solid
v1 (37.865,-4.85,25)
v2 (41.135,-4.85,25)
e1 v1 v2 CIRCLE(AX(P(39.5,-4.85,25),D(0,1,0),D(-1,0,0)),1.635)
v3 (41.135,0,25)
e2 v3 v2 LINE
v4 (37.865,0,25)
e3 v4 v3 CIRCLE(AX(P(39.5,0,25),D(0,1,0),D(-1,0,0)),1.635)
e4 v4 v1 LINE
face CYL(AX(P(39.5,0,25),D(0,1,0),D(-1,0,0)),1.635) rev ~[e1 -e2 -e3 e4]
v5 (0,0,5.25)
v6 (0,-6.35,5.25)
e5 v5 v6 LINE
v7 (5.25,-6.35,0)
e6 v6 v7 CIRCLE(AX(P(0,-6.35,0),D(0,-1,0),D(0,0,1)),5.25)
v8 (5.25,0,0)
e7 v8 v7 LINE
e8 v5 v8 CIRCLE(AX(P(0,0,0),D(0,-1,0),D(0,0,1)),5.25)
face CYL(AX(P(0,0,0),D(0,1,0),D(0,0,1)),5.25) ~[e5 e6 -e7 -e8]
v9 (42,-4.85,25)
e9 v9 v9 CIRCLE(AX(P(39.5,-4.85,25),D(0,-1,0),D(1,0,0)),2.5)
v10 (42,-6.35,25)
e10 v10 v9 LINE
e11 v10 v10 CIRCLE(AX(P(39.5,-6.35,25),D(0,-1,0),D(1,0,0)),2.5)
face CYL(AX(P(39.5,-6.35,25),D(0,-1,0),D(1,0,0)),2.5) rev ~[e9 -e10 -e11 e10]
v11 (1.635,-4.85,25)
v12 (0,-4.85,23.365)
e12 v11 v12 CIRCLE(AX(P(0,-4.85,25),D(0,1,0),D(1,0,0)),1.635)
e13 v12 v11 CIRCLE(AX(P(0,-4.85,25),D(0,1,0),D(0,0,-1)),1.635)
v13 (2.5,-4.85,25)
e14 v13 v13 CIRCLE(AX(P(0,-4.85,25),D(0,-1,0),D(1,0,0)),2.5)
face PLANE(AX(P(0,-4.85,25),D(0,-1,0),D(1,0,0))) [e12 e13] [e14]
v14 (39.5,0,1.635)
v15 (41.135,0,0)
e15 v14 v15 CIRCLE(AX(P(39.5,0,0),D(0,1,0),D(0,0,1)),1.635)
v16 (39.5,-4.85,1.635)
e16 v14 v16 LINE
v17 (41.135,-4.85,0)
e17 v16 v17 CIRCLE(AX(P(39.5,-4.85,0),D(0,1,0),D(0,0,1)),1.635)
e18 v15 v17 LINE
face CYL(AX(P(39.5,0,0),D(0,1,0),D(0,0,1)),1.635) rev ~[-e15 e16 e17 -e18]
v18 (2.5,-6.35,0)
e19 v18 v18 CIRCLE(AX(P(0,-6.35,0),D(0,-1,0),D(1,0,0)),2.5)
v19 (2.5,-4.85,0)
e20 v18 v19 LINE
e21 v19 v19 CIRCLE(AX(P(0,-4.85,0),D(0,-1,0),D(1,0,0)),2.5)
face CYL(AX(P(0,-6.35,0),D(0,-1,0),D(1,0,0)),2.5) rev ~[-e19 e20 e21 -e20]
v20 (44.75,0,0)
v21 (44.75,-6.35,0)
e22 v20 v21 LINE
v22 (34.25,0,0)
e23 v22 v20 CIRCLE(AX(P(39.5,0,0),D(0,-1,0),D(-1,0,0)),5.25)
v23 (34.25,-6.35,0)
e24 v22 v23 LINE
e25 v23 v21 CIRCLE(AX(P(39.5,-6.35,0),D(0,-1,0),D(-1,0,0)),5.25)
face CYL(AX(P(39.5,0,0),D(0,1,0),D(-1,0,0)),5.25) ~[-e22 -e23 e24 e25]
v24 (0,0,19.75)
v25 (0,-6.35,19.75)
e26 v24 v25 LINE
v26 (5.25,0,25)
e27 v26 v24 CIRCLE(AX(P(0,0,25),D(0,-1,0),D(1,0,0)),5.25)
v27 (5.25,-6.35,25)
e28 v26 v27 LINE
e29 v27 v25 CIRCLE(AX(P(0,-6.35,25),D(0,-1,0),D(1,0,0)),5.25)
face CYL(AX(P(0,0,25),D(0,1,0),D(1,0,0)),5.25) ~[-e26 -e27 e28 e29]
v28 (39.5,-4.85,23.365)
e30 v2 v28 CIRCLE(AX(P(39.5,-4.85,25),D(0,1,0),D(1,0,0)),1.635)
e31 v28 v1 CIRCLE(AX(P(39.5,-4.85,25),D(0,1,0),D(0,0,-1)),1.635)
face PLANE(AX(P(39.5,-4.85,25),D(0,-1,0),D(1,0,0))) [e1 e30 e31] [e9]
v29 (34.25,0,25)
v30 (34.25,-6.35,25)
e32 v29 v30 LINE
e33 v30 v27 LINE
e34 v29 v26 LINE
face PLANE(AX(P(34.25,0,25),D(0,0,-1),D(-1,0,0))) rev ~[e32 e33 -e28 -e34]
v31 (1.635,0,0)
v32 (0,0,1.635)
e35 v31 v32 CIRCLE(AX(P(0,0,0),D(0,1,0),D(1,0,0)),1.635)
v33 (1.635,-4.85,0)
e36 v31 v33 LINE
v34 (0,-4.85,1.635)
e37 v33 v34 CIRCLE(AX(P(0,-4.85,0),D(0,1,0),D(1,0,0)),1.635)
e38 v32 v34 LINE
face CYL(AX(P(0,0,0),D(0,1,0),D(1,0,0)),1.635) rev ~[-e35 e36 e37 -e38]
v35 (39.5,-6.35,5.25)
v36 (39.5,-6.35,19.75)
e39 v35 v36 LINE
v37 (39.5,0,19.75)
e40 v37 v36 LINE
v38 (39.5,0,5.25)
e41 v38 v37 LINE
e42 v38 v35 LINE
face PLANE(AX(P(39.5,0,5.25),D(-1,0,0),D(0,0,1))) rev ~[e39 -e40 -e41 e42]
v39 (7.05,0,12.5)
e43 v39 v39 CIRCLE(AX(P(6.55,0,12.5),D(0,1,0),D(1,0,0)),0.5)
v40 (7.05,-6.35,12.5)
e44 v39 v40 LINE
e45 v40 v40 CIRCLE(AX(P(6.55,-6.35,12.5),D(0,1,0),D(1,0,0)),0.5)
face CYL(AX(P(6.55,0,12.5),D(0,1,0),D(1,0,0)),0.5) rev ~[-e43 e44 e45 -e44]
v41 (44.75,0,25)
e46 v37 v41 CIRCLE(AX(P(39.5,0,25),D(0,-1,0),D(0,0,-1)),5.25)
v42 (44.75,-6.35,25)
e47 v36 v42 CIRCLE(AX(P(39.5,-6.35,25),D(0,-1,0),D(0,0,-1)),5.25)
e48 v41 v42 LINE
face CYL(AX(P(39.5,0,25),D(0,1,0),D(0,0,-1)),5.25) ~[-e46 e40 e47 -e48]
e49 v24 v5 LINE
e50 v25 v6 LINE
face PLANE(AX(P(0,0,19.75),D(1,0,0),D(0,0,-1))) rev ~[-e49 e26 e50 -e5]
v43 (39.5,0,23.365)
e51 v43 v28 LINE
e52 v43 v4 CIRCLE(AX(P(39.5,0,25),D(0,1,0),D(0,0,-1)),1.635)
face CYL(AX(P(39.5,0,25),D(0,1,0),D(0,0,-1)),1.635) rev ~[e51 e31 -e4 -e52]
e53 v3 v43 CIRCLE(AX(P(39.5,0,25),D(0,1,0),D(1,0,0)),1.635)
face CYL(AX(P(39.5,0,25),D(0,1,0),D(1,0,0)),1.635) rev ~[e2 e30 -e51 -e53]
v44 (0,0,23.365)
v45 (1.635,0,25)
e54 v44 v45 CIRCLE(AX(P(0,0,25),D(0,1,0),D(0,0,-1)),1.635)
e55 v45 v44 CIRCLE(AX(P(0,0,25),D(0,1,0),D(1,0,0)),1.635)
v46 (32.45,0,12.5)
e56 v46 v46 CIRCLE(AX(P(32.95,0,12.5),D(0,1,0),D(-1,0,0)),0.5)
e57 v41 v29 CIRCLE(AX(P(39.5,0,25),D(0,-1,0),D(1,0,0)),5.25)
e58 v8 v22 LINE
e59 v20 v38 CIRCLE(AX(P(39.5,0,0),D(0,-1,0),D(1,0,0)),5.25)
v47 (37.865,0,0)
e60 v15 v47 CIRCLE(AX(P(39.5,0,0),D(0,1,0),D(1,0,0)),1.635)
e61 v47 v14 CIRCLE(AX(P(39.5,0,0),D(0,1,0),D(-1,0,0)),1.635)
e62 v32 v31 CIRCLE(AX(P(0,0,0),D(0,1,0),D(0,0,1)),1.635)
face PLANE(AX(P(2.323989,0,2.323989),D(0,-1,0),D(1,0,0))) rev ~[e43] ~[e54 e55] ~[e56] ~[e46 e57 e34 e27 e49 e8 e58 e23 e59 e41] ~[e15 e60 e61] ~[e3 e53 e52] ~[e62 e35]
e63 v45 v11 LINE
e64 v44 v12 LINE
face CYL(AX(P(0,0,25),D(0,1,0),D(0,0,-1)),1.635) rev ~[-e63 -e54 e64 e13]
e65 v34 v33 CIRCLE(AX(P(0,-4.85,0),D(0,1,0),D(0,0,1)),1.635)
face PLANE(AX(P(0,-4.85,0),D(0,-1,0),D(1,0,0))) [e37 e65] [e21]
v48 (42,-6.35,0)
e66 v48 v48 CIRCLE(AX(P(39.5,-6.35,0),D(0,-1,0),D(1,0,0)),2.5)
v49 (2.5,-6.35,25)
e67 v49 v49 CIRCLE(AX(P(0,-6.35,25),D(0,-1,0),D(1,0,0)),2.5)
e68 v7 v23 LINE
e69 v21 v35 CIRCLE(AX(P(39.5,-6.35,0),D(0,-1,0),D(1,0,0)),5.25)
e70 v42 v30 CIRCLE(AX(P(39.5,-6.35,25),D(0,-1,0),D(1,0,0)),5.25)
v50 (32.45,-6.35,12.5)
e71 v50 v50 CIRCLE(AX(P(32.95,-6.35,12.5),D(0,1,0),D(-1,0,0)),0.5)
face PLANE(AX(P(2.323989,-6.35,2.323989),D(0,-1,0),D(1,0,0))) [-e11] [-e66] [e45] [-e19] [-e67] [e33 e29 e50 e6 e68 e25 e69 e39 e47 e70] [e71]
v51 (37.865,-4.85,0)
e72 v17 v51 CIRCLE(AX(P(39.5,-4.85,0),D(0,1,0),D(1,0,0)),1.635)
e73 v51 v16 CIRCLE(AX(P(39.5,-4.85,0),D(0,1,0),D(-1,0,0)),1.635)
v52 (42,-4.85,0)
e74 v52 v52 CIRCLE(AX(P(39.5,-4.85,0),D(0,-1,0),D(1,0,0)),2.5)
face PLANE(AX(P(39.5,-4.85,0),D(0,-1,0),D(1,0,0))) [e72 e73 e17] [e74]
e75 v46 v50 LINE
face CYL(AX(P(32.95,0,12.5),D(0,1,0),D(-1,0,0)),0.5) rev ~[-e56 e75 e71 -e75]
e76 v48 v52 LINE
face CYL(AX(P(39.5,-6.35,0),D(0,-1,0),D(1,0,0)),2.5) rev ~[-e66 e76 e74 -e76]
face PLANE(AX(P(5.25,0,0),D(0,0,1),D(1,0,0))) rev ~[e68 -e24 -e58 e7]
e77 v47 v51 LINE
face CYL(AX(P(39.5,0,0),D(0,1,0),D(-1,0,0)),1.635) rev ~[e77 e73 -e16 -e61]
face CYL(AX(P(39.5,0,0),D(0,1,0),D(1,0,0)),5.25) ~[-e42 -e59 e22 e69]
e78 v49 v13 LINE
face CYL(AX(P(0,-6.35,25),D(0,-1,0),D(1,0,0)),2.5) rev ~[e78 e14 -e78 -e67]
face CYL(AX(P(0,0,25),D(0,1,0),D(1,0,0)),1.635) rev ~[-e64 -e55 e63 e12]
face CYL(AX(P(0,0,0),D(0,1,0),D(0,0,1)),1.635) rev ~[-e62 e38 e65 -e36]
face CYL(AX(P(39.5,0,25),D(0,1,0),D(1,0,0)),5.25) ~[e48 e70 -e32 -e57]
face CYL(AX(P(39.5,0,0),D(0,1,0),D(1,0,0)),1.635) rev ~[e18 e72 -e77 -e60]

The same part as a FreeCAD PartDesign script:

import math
import FreeCAD as App
import Part
import Sketcher

V = App.Vector

doc = App.newDocument("Part")
body = doc.addObject("PartDesign::Body", "Body")

sketch1 = doc.addObject("Sketcher::SketchObject", "Sketch")
body.addObject(sketch1)
sketch1.AttachmentSupport = (doc.XZ_Plane, [""])
sketch1.MapMode = "FlatFace"
sketch1.addGeometry(Part.ArcOfCircle(Part.Circle(V(0, 0, 0), V(0, 0, 1), 5.2), math.radians(90), math.radians(360)), False)
sketch1.addGeometry(Part.LineSegment(V(5.2, 0, 0), V(34.2, 0, 0)), False)
sketch1.addGeometry(Part.ArcOfCircle(Part.Circle(V(39.5, 0, 0), V(0, 0, 1), 5.2), math.radians(180), math.radians(360)), False)
sketch1.addGeometry(Part.ArcOfCircle(Part.Circle(V(39.5, 0, 0), V(0, 0, 1), 5.2), math.radians(0), math.radians(90)), False)
sketch1.addGeometry(Part.LineSegment(V(39.5, 5.2, 0), V(39.5, 19.8, 0)), False)
sketch1.addGeometry(Part.ArcOfCircle(Part.Circle(V(39.5, 25, 0), V(0, 0, 1), 5.2), math.radians(-90), math.radians(0)), False)
sketch1.addGeometry(Part.ArcOfCircle(Part.Circle(V(39.5, 25, 0), V(0, 0, 1), 5.2), math.radians(0), math.radians(180)), False)
sketch1.addGeometry(Part.LineSegment(V(34.2, 25, 0), V(5.2, 25, 0)), False)
sketch1.addGeometry(Part.ArcOfCircle(Part.Circle(V(0, 25, 0), V(0, 0, 1), 5.2), math.radians(0), math.radians(270)), False)
sketch1.addGeometry(Part.LineSegment(V(0, 19.8, 0), V(0, 5.2, 0)), False)
sketch1.addGeometry(Part.ArcOfCircle(Part.Circle(V(0, 0, 0), V(0, 0, 1), 1.6), math.radians(0), math.radians(90)), False)
sketch1.addGeometry(Part.ArcOfCircle(Part.Circle(V(0, 0, 0), V(0, 0, 1), 1.6), math.radians(90), math.radians(360)), False)
sketch1.addGeometry(Part.ArcOfCircle(Part.Circle(V(39.5, 25, 0), V(0, 0, 1), 1.6), math.radians(180), math.radians(270)), False)
sketch1.addGeometry(Part.ArcOfCircle(Part.Circle(V(39.5, 25, 0), V(0, 0, 1), 1.6), math.radians(0), math.radians(180)), False)
sketch1.addGeometry(Part.ArcOfCircle(Part.Circle(V(39.5, 25, 0), V(0, 0, 1), 1.6), math.radians(-90), math.radians(0)), False)
sketch1.addGeometry(Part.ArcOfCircle(Part.Circle(V(39.5, 0, 0), V(0, 0, 1), 1.6), math.radians(90), math.radians(180)), False)
sketch1.addGeometry(Part.ArcOfCircle(Part.Circle(V(39.5, 0, 0), V(0, 0, 1), 1.6), math.radians(0), math.radians(90)), False)
sketch1.addGeometry(Part.ArcOfCircle(Part.Circle(V(39.5, 0, 0), V(0, 0, 1), 1.6), math.radians(180), math.radians(360)), False)
sketch1.addGeometry(Part.ArcOfCircle(Part.Circle(V(0, 25, 0), V(0, 0, 1), 1.6), math.radians(-90), math.radians(0)), False)
sketch1.addGeometry(Part.ArcOfCircle(Part.Circle(V(0, 25, 0), V(0, 0, 1), 1.6), math.radians(0), math.radians(270)), False)
sketch1.addConstraint(Sketcher.Constraint("Coincident", 0, 2, 1, 1))
sketch1.addConstraint(Sketcher.Constraint("Coincident", 1, 2, 2, 1))
sketch1.addConstraint(Sketcher.Constraint("Tangent", 2, 2, 3, 1))
sketch1.addConstraint(Sketcher.Constraint("Coincident", 3, 2, 4, 1))
sketch1.addConstraint(Sketcher.Constraint("Coincident", 4, 2, 5, 1))
sketch1.addConstraint(Sketcher.Constraint("Tangent", 5, 2, 6, 1))
sketch1.addConstraint(Sketcher.Constraint("Coincident", 6, 2, 7, 1))
sketch1.addConstraint(Sketcher.Constraint("Coincident", 7, 2, 8, 1))
sketch1.addConstraint(Sketcher.Constraint("Coincident", 8, 2, 9, 1))
sketch1.addConstraint(Sketcher.Constraint("Coincident", 9, 2, 0, 1))
sketch1.addConstraint(Sketcher.Constraint("Tangent", 10, 1, 11, 2))
sketch1.addConstraint(Sketcher.Constraint("Coincident", 11, 1, 10, 2))
sketch1.addConstraint(Sketcher.Constraint("Tangent", 12, 1, 13, 2))
sketch1.addConstraint(Sketcher.Constraint("Tangent", 13, 1, 14, 2))
sketch1.addConstraint(Sketcher.Constraint("Tangent", 14, 1, 12, 2))
sketch1.addConstraint(Sketcher.Constraint("Tangent", 15, 1, 16, 2))
sketch1.addConstraint(Sketcher.Constraint("Tangent", 16, 1, 17, 2))
sketch1.addConstraint(Sketcher.Constraint("Tangent", 17, 1, 15, 2))
sketch1.addConstraint(Sketcher.Constraint("Tangent", 18, 1, 19, 2))
sketch1.addConstraint(Sketcher.Constraint("Coincident", 19, 1, 18, 2))
sketch1.addConstraint(Sketcher.Constraint("Horizontal", 1))
sketch1.addConstraint(Sketcher.Constraint("Vertical", 4))
sketch1.addConstraint(Sketcher.Constraint("Horizontal", 7))
sketch1.addConstraint(Sketcher.Constraint("Vertical", 9))
sketch1.addConstraint(Sketcher.Constraint("Coincident", 0, 3, -1, 1))
sketch1.addConstraint(Sketcher.Constraint("Coincident", 10, 3, -1, 1))
sketch1.addConstraint(Sketcher.Constraint("Coincident", 12, 3, 5, 3))
sketch1.addConstraint(Sketcher.Constraint("Coincident", 15, 3, 2, 3))
sketch1.addConstraint(Sketcher.Constraint("Coincident", 18, 3, 8, 3))
sketch1.addConstraint(Sketcher.Constraint("Equal", 0, 2))
sketch1.addConstraint(Sketcher.Constraint("Equal", 2, 3))
sketch1.addConstraint(Sketcher.Constraint("Equal", 3, 5))
sketch1.addConstraint(Sketcher.Constraint("Equal", 5, 6))
sketch1.addConstraint(Sketcher.Constraint("Equal", 6, 8))
sketch1.addConstraint(Sketcher.Constraint("Equal", 11, 12))
sketch1.addConstraint(Sketcher.Constraint("Equal", 14, 15))
sketch1.addConstraint(Sketcher.Constraint("Equal", 17, 18))
sketch1.addConstraint(Sketcher.Constraint("PointOnObject", 2, 3, -1))
sketch1.addConstraint(Sketcher.Constraint("PointOnObject", 8, 3, -2))
sketch1.addConstraint(Sketcher.Constraint("PointOnObject", 0, 2, -1))
sketch1.addConstraint(Sketcher.Constraint("PointOnObject", 2, 2, -1))
sketch1.addConstraint(Sketcher.Constraint("PointOnObject", 8, 2, -2))
sketch1.addConstraint(Sketcher.Constraint("PointOnObject", 10, 1, -1))
sketch1.addConstraint(Sketcher.Constraint("PointOnObject", 11, 1, -2))
sketch1.addConstraint(Sketcher.Constraint("PointOnObject", 16, 1, -1))
sketch1.addConstraint(Sketcher.Constraint("PointOnObject", 17, 1, -1))
sketch1.addConstraint(Sketcher.Constraint("PointOnObject", 18, 1, -2))
sketch1.addConstraint(Sketcher.Constraint("Horizontal", 6, 3, 8, 3))
sketch1.addConstraint(Sketcher.Constraint("Horizontal", 19, 3, 5, 2))
sketch1.addConstraint(Sketcher.Constraint("Horizontal", 5, 2, 6, 2))
sketch1.addConstraint(Sketcher.Constraint("Horizontal", 7, 2, 12, 1))
sketch1.addConstraint(Sketcher.Constraint("Horizontal", 12, 1, 13, 1))
sketch1.addConstraint(Sketcher.Constraint("Horizontal", 13, 1, 19, 1))
sketch1.addConstraint(Sketcher.Constraint("Vertical", 3, 3, 5, 3))
sketch1.addConstraint(Sketcher.Constraint("Vertical", 17, 3, 3, 2))
sketch1.addConstraint(Sketcher.Constraint("Vertical", 4, 2, 14, 1))
sketch1.addConstraint(Sketcher.Constraint("Vertical", 14, 1, 15, 1))
sketch1.addConstraint(Sketcher.Constraint("DistanceX", 1, 1, 1, 2, 29.0))
sketch1.addConstraint(Sketcher.Constraint("Radius", 0, 5.25))
sketch1.addConstraint(Sketcher.Constraint("DistanceY", 4, 1, 4, 2, 14.5))
sketch1.addConstraint(Sketcher.Constraint("Radius", 10, 1.635))
pad1 = doc.addObject("PartDesign::Pad", "Pad")
body.addObject(pad1)
pad1.Profile = sketch1
pad1.Length = 6.35

sketch2 = doc.addObject("Sketcher::SketchObject", "Sketch001")
body.addObject(sketch2)
sketch2.AttachmentSupport = (doc.XZ_Plane, [""])
sketch2.MapMode = "FlatFace"
sketch2.AttachmentOffset = App.Placement(V(0, 0, 6.35), App.Rotation())
sketch2.addGeometry(Part.Circle(V(0, 25, 0), V(0, 0, 1), 2.5), False)
sketch2.addGeometry(Part.Circle(V(39.5, 25, 0), V(0, 0, 1), 2.5), False)
sketch2.addGeometry(Part.Circle(V(39.5, 0, 0), V(0, 0, 1), 2.5), False)
sketch2.addGeometry(Part.Circle(V(0, 0, 0), V(0, 0, 1), 2.5), False)
sketch2.addConstraint(Sketcher.Constraint("Coincident", 3, 3, -1, 1))
sketch2.addConstraint(Sketcher.Constraint("Equal", 0, 1))
sketch2.addConstraint(Sketcher.Constraint("Equal", 1, 2))
sketch2.addConstraint(Sketcher.Constraint("Equal", 2, 3))
sketch2.addConstraint(Sketcher.Constraint("PointOnObject", 0, 3, -2))
sketch2.addConstraint(Sketcher.Constraint("PointOnObject", 2, 3, -1))
sketch2.addConstraint(Sketcher.Constraint("Horizontal", 0, 3, 1, 3))
sketch2.addConstraint(Sketcher.Constraint("Vertical", 1, 3, 2, 3))
sketch2.addConstraint(Sketcher.Constraint("Diameter", 0, 5.0))
sketch2.addConstraint(Sketcher.Constraint("DistanceY", -1, 1, 0, 3, 25.0))
sketch2.addConstraint(Sketcher.Constraint("DistanceX", -1, 1, 1, 3, 39.5))
pocket1 = doc.addObject("PartDesign::Pocket", "Pocket")
body.addObject(pocket1)
pocket1.Profile = sketch2
pocket1.Length = 1.5

sketch3 = doc.addObject("Sketcher::SketchObject", "Sketch002")
body.addObject(sketch3)
sketch3.AttachmentSupport = (doc.XZ_Plane, [""])
sketch3.MapMode = "FlatFace"
sketch3.addGeometry(Part.Circle(V(33, 12.5, 0), V(0, 0, 1), 0.5), False)
sketch3.addGeometry(Part.Circle(V(6.5, 12.5, 0), V(0, 0, 1), 0.5), False)
sketch3.addConstraint(Sketcher.Constraint("Equal", 0, 1))
sketch3.addConstraint(Sketcher.Constraint("Horizontal", 0, 3, 1, 3))
sketch3.addConstraint(Sketcher.Constraint("Diameter", 0, 1.0))
sketch3.addConstraint(Sketcher.Constraint("DistanceY", -1, 1, 0, 3, 12.5))
sketch3.addConstraint(Sketcher.Constraint("DistanceX", 1, 3, 0, 3, 26.4))
sketch3.addConstraint(Sketcher.Constraint("DistanceX", -1, 1, 0, 3, 32.95))
pocket2 = doc.addObject("PartDesign::Pocket", "Pocket001")
body.addObject(pocket2)
pocket2.Profile = sketch3
pocket2.Length = 25.4
pocket2.Reversed = True

doc.recompute()
